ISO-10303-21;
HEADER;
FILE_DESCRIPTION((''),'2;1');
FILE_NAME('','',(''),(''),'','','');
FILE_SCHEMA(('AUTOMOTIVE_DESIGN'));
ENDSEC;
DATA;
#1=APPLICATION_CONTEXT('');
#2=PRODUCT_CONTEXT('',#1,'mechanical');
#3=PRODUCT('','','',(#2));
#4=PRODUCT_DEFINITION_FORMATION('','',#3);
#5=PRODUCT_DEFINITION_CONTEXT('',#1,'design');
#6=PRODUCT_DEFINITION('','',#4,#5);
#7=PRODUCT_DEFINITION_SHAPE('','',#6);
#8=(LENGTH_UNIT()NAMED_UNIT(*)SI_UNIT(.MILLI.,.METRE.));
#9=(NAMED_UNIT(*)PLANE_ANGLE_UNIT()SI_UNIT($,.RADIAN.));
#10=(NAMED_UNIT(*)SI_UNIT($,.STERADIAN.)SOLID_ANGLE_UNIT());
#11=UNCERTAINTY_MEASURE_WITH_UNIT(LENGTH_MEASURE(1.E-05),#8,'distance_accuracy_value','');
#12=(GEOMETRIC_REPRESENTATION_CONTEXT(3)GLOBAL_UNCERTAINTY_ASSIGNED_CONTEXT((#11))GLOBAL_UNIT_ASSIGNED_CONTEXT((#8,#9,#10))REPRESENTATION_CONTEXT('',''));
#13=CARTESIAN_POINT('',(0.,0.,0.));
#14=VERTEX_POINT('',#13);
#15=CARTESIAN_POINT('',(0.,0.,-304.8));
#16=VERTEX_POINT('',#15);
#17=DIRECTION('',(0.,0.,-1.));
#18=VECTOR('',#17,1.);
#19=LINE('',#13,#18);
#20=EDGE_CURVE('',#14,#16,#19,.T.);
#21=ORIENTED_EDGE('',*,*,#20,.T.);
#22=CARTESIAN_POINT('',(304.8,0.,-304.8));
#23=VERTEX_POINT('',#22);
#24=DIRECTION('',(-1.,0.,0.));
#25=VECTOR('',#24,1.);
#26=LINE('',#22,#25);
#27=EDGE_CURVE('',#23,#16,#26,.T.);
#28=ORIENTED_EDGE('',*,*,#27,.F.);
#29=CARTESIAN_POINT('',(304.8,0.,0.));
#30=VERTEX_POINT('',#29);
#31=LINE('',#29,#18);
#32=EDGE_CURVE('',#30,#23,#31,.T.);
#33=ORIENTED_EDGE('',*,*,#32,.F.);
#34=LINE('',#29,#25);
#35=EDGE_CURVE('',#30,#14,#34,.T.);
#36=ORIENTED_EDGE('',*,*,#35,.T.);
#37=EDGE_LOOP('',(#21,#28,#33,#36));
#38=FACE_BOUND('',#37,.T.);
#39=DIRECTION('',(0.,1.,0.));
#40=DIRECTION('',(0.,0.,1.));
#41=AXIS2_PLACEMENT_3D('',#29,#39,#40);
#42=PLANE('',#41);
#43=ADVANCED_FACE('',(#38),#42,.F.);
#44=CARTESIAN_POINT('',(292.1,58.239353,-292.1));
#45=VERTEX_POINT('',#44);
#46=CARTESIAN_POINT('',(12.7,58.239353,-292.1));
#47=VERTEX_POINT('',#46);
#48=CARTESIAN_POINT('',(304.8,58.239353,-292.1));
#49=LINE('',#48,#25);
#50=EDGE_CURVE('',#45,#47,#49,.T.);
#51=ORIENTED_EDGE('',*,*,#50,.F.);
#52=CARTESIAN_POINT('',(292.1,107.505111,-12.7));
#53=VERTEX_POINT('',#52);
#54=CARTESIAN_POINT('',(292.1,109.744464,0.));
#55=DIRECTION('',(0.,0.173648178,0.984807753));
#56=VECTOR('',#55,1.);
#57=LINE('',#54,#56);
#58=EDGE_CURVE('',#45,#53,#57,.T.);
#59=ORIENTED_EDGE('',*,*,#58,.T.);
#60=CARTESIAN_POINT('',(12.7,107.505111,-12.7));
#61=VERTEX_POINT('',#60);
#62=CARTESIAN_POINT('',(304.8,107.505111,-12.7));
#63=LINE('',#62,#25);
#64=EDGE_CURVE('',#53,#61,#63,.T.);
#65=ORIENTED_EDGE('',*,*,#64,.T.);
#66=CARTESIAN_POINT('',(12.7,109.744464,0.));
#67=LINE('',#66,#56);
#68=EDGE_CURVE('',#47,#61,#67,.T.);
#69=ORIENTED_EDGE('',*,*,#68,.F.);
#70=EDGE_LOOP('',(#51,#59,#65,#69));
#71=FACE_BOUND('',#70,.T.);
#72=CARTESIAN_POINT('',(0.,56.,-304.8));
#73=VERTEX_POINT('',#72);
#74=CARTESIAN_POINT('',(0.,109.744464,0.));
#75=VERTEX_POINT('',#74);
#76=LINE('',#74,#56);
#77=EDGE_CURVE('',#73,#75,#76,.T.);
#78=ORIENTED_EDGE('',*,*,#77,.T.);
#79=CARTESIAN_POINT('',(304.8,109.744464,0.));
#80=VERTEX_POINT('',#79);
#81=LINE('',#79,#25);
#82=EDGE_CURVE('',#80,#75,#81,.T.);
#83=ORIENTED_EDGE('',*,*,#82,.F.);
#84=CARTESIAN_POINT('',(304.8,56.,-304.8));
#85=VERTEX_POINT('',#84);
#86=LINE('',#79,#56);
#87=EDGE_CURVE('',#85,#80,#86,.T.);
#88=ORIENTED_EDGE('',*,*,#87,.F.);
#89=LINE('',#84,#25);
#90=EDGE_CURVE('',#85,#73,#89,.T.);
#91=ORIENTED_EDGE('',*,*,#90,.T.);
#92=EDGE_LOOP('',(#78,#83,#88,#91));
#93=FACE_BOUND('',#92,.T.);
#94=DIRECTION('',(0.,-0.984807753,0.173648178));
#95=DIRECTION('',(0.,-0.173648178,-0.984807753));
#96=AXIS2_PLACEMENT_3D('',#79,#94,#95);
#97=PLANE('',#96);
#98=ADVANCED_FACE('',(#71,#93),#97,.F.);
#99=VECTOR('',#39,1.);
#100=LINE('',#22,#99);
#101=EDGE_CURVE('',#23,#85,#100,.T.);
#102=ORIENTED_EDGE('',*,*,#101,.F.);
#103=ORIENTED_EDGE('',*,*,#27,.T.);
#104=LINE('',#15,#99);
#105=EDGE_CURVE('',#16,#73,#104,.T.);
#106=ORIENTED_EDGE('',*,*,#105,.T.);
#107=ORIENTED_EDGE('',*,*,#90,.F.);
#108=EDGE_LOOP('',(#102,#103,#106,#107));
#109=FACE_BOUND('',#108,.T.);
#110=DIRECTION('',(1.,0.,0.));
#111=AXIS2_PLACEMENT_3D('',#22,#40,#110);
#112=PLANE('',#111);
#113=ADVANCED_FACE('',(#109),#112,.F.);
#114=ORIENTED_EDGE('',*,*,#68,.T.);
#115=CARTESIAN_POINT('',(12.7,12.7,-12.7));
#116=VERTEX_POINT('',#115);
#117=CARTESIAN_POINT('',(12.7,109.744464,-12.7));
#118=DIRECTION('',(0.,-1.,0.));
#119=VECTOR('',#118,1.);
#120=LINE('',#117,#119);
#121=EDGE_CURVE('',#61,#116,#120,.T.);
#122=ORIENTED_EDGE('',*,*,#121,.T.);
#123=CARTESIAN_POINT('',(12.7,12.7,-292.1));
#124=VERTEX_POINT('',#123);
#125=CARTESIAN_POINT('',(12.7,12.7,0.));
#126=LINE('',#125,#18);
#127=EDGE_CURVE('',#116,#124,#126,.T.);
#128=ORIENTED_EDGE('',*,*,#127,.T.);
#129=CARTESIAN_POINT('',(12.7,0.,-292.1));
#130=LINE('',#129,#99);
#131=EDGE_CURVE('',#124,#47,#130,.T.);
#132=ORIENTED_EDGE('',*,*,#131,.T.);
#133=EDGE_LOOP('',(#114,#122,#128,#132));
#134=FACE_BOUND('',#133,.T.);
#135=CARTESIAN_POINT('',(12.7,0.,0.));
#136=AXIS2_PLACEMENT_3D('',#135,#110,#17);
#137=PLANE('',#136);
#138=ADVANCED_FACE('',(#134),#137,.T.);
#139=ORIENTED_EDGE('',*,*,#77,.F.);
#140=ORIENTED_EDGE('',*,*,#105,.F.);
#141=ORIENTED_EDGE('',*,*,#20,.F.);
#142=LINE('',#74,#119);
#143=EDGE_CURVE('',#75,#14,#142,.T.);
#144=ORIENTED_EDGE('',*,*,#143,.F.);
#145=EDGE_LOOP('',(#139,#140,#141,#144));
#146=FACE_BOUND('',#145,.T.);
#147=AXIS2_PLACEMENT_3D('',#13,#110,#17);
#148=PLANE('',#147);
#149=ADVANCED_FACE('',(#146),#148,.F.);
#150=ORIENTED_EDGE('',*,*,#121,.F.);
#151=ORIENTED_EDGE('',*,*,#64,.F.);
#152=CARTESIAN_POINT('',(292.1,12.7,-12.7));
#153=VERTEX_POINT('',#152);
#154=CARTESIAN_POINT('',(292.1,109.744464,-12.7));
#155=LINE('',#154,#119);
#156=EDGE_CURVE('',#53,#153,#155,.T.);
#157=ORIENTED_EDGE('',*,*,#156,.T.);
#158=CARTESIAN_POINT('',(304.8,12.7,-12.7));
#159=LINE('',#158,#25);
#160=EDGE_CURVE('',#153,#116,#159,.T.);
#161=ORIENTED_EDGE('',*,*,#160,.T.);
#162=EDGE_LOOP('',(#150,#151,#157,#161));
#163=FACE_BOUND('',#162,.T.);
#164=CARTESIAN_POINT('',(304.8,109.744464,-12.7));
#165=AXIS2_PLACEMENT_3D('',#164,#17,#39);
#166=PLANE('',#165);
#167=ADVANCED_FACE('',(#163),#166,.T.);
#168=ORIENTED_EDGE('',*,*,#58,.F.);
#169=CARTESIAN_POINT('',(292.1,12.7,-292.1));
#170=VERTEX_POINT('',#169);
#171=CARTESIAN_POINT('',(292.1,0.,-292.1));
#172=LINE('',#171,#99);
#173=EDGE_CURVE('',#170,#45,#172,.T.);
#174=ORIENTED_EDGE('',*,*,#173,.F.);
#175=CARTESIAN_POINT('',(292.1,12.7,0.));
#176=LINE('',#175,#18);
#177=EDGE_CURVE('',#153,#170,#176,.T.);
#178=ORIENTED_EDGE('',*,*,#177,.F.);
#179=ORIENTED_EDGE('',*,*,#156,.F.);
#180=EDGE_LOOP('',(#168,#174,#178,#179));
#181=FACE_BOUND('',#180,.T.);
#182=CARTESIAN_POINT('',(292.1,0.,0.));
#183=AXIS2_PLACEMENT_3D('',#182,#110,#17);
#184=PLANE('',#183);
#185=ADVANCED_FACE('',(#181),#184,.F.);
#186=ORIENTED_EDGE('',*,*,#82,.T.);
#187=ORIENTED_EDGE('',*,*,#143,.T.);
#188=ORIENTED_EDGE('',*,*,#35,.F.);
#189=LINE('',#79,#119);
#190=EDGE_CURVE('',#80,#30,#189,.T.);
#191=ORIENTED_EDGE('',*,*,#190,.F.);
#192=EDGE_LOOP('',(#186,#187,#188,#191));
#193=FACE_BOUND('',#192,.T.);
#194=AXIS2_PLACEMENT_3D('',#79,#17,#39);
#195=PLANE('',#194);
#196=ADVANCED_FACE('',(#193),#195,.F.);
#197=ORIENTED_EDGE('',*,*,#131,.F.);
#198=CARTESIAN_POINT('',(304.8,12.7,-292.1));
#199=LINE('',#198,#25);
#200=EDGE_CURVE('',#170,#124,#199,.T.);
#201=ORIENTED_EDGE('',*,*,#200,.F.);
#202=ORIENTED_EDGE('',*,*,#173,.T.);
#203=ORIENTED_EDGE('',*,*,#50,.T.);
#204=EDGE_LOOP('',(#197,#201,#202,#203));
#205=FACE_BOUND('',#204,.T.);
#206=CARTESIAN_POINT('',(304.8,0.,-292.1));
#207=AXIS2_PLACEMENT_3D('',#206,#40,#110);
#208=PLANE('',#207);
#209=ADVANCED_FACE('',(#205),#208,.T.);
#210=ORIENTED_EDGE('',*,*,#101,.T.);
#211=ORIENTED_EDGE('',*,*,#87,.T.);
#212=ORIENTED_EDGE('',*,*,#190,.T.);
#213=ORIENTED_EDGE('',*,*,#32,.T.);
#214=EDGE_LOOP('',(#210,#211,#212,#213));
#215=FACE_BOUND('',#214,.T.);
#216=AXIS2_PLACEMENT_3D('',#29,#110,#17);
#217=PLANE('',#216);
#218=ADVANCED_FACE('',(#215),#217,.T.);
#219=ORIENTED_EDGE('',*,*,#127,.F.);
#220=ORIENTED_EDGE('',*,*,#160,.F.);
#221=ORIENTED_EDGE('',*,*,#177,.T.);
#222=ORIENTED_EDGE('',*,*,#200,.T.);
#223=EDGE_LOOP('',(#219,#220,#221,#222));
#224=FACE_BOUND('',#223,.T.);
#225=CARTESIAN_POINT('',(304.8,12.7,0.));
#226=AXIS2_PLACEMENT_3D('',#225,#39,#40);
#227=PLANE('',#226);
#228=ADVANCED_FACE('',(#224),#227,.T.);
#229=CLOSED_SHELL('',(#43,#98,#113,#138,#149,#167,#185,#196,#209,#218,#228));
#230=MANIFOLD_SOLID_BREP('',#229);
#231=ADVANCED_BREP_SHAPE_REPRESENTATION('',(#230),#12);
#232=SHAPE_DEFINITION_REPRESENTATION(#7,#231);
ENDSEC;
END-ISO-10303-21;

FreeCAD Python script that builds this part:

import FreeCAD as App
import Part
import Sketcher

V = App.Vector
Q = App.Units.Quantity


def faces_at(feature, points):
    """Names of the faces that lie closest to the given points."""
    faces = feature.Shape.Faces
    near = lambda p: min(range(len(faces)), key=lambda i: faces[i].distToShape(Part.Vertex(*p))[0])
    return sorted({f"Face{near(p) + 1}" for p in points})

doc = App.newDocument("Part")
params = doc.addObject("Spreadsheet::Sheet", "Params")
for row, (alias, value) in enumerate([
    ("sketch1_height", "12 in"),
    ("pad1_length", "12 in"),
    ("thickness_wall", "0.5 in"),
], start=1):
    params.set(f"A{row}", alias)
    params.set(f"B{row}", "=" + value)
    params.setAlias(f"B{row}", alias)

body = doc.addObject("PartDesign::Body", "Body")

# Sketch on YZ plane
sketch1 = body.newObject("Sketcher::SketchObject", "Sketch")
sketch1.AttachmentSupport = (doc.getObject("YZ_Plane"), [""])
sketch1.MapMode = "FlatFace"
sketch1.addGeometry([
    Part.LineSegment(V(0, 0, 0), V(0, -305, 0)),
    Part.LineSegment(V(0, -305, 0), V(56, -305, 0)),
    Part.LineSegment(V(56, -305, 0), V(110, 0, 0)),
    Part.LineSegment(V(110, 0, 0), V(0, 0, 0)),
], False)
sketch1.addConstraint([
    Sketcher.Constraint("Coincident", 0, 2, 1, 1),
    Sketcher.Constraint("Coincident", 1, 2, 2, 1),
    Sketcher.Constraint("Coincident", 2, 2, 3, 1),
    Sketcher.Constraint("Coincident", 3, 2, 0, 1),
    Sketcher.Constraint("Vertical", 0),
    Sketcher.Constraint("Horizontal", 1),
    Sketcher.Constraint("Horizontal", 3),
    Sketcher.Constraint("Coincident", 3, 2, -1, 1),
    Sketcher.Constraint("DistanceY", 0, 2, 0, 1, Q("12 in")),
    Sketcher.Constraint("Angle", 2, Q("80 deg")),
    Sketcher.Constraint("DistanceX", 1, 1, 1, 2, Q("56 mm")),
])
sketch1.setExpression("Constraints[8]", "Params.sketch1_height")
pad1 = body.newObject("PartDesign::Pad", "Pad")
pad1.Profile = sketch1
pad1.setExpression("Length", "Params.pad1_length")
doc.recompute()

thickness = body.newObject("PartDesign::Thickness", "Thickness")
thickness.Base = (pad1, faces_at(pad1, [(152.4, 82.872, -152.4)]))
thickness.setExpression("Value", "Params.thickness_wall")
thickness.Reversed = True
thickness.Join = "Intersection"

doc.recompute()
